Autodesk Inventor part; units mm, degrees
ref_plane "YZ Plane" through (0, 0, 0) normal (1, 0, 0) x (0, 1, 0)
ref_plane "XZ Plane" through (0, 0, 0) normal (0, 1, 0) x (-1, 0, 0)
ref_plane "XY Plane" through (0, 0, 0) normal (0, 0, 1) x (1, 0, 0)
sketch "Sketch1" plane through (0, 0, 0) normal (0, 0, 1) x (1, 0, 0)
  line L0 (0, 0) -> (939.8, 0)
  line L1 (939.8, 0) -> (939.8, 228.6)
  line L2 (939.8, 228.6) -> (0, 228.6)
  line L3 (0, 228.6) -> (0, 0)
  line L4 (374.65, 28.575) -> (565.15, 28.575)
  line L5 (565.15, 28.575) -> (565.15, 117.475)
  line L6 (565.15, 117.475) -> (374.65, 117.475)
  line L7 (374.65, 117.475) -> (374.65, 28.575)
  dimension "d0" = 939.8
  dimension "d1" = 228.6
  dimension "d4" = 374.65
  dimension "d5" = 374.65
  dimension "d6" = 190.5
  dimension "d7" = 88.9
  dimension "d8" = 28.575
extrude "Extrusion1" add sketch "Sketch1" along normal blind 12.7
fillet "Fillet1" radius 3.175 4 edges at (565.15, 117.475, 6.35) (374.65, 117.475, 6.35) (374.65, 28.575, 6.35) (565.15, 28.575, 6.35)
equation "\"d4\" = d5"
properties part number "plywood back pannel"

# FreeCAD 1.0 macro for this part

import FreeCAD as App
import Part
import Sketcher

V = App.Vector
Q = App.Units.Quantity


def edges_at(feature, points):
    """Names of the edges that pass closest to the given points."""
    edges = feature.Shape.Edges
    near = lambda p: min(range(len(edges)), key=lambda i: edges[i].distToShape(Part.Vertex(*p))[0])
    return sorted({f"Edge{near(p) + 1}" for p in points})


def add_polygon(sketch, points):
    """Adds a closed chain of lines whose ends are joined by coincident constraints."""
    first, n = sketch.GeometryCount, len(points)
    for a, b in zip(points, points[1:] + points[:1]):
        sketch.addGeometry(Part.LineSegment(App.Vector(*a, 0), App.Vector(*b, 0)), False)
    for i in range(n):
        sketch.addConstraint(Sketcher.Constraint("Coincident", first + i, 2, first + (i + 1) % n, 1))

doc = App.newDocument("Part")
body = doc.addObject("PartDesign::Body", "Body")

sketch1 = body.newObject("Sketcher::SketchObject", "Sketch")
sketch1.AttachmentSupport = (doc.getObject("XY_Plane"), [""])
sketch1.MapMode = "FlatFace"
add_polygon(sketch1, [(0, 229), (0, 0), (940, 0), (940, 229)])
add_polygon(sketch1, [(565, 29), (375, 29), (375, 117), (565, 117)])
sketch1.addConstraint([
    Sketcher.Constraint("Vertical", 0),
    Sketcher.Constraint("Horizontal", 1),
    Sketcher.Constraint("Vertical", 2),
    Sketcher.Constraint("Horizontal", 3),
    Sketcher.Constraint("Horizontal", 4),
    Sketcher.Constraint("Vertical", 5),
    Sketcher.Constraint("Horizontal", 6),
    Sketcher.Constraint("Vertical", 7),
    Sketcher.Constraint("Coincident", 0, 2, -1, 1),
    Sketcher.Constraint("DistanceX", 1, 1, 1, 2, Q("37 in")),
    Sketcher.Constraint("DistanceY", 0, 2, 0, 1, Q("9 in")),
    Sketcher.Constraint("DistanceX", 4, 2, 4, 1, Q("7.5 in")),
    Sketcher.Constraint("DistanceY", 5, 1, 5, 2, Q("3.5 in")),
    Sketcher.Constraint("DistanceX", -1, 1, 4, 2, Q("14.75 in")),
    Sketcher.Constraint("DistanceY", -1, 1, 4, 2, Q("1.125 in")),
])
pad1 = body.newObject("PartDesign::Pad", "Pad")
pad1.Profile = sketch1
pad1.Length = Q("0.5 in")
doc.recompute()

fillet = body.newObject("PartDesign::Fillet", "Fillet")
fillet.Base = (pad1, edges_at(pad1, [
    (565.15, 117.475, 6.35),
    (374.65, 117.475, 6.35),
    (374.65, 28.575, 6.35),
    (565.15, 28.575, 6.35),
]))
fillet.Radius = Q("0.125 in")

doc.recompute()
